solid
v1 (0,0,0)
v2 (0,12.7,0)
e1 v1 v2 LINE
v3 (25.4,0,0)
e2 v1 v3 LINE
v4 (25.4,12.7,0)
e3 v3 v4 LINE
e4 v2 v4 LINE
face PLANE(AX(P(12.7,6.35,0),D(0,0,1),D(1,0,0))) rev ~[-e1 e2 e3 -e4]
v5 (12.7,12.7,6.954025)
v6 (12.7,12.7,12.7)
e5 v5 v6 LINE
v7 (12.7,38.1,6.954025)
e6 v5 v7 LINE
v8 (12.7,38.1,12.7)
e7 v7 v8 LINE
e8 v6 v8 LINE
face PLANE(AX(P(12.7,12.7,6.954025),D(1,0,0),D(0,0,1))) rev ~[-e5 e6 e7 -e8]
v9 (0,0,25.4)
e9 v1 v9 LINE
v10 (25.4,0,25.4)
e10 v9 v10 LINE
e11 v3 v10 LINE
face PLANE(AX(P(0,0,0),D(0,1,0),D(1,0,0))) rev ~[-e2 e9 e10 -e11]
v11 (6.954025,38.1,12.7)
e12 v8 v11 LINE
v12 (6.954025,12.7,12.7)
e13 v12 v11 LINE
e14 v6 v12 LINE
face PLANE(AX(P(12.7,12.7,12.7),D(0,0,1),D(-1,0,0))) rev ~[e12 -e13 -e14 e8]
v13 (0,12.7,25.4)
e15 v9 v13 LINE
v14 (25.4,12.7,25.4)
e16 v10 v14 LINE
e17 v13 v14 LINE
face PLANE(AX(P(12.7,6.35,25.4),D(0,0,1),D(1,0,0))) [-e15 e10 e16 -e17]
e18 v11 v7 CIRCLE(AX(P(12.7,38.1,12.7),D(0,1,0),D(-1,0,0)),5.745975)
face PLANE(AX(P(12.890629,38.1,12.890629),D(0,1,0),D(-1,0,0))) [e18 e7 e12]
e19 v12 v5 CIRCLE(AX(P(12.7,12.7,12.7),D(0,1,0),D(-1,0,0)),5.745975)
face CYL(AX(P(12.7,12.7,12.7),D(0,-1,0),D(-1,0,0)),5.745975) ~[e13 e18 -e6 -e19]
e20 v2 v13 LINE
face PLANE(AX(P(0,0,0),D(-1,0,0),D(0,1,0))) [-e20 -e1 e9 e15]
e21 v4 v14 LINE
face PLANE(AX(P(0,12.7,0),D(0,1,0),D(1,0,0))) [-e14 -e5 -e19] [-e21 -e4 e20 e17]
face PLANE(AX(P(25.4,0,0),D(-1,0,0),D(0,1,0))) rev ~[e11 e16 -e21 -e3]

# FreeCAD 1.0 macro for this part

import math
import FreeCAD as App
import Part
import Sketcher

V = App.Vector
Q = App.Units.Quantity


def add_polygon(sketch, points):
    """Adds a closed chain of lines whose ends are joined by coincident constraints."""
    first, n = sketch.GeometryCount, len(points)
    for a, b in zip(points, points[1:] + points[:1]):
        sketch.addGeometry(Part.LineSegment(App.Vector(*a, 0), App.Vector(*b, 0)), False)
    for i in range(n):
        sketch.addConstraint(Sketcher.Constraint("Coincident", first + i, 2, first + (i + 1) % n, 1))

doc = App.newDocument("Part")
body = doc.addObject("PartDesign::Body", "Body")

# Sketch on XY plane
sketch1 = body.newObject("Sketcher::SketchObject", "Sketch")
sketch1.AttachmentSupport = (doc.getObject("XY_Plane"), [""])
sketch1.MapMode = "FlatFace"
add_polygon(sketch1, [(0, 13), (0, 0), (25, 0), (25, 13)])  # lines 0-3
sketch1.addConstraint([
    Sketcher.Constraint("Vertical", 0),
    Sketcher.Constraint("Horizontal", 1),
    Sketcher.Constraint("Vertical", 2),
    Sketcher.Constraint("Horizontal", 3),
    Sketcher.Constraint("Coincident", 0, 2, -1, 1),
    Sketcher.Constraint("DistanceX", 1, 1, 1, 2, Q("1 in")),
    Sketcher.Constraint("DistanceY", 0, 2, 0, 1, Q("0.5 in")),
])
pad1 = body.newObject("PartDesign::Pad", "Pad")
pad1.Profile = sketch1
pad1.Length = Q("1 in")

# Sketch on XZ plane
sketch2 = body.newObject("Sketcher::SketchObject", "Sketch001")
sketch2.AttachmentSupport = (doc.getObject("XZ_Plane"), [""])
sketch2.MapMode = "FlatFace"
sketch2.AttachmentOffset = App.Placement(V(0, 0, -0.5 * 25.4), App.Rotation())
sketch2.addGeometry([
    Part.LineSegment(V(13, 13, 0), V(7, 13, 0)),
    Part.ArcOfCircle(Part.Circle(V(13, 13, 0), V(0, 0, 1), 6), math.radians(-90), math.radians(180)),
    Part.LineSegment(V(13, 7, 0), V(13, 13, 0)),
], False)
sketch2.addConstraint([
    Sketcher.Constraint("Coincident", 0, 2, 1, 2),
    Sketcher.Constraint("Coincident", 1, 1, 2, 1),
    Sketcher.Constraint("Coincident", 2, 2, 0, 1),
    Sketcher.Constraint("Horizontal", 0),
    Sketcher.Constraint("Vertical", 2),
    Sketcher.Constraint("Coincident", 2, 2, 1, 3),
    Sketcher.Constraint("DistanceX", -1, 1, 1, 3, Q("0.5 in")),
    Sketcher.Constraint("DistanceY", -1, 1, 1, 3, Q("0.5 in")),
    Sketcher.Constraint("Radius", 1, 5.745975),
])
pad2 = body.newObject("PartDesign::Pad", "Pad001")
pad2.Profile = sketch2
pad2.Length = Q("1 in")
pad2.Reversed = True

doc.recompute()
